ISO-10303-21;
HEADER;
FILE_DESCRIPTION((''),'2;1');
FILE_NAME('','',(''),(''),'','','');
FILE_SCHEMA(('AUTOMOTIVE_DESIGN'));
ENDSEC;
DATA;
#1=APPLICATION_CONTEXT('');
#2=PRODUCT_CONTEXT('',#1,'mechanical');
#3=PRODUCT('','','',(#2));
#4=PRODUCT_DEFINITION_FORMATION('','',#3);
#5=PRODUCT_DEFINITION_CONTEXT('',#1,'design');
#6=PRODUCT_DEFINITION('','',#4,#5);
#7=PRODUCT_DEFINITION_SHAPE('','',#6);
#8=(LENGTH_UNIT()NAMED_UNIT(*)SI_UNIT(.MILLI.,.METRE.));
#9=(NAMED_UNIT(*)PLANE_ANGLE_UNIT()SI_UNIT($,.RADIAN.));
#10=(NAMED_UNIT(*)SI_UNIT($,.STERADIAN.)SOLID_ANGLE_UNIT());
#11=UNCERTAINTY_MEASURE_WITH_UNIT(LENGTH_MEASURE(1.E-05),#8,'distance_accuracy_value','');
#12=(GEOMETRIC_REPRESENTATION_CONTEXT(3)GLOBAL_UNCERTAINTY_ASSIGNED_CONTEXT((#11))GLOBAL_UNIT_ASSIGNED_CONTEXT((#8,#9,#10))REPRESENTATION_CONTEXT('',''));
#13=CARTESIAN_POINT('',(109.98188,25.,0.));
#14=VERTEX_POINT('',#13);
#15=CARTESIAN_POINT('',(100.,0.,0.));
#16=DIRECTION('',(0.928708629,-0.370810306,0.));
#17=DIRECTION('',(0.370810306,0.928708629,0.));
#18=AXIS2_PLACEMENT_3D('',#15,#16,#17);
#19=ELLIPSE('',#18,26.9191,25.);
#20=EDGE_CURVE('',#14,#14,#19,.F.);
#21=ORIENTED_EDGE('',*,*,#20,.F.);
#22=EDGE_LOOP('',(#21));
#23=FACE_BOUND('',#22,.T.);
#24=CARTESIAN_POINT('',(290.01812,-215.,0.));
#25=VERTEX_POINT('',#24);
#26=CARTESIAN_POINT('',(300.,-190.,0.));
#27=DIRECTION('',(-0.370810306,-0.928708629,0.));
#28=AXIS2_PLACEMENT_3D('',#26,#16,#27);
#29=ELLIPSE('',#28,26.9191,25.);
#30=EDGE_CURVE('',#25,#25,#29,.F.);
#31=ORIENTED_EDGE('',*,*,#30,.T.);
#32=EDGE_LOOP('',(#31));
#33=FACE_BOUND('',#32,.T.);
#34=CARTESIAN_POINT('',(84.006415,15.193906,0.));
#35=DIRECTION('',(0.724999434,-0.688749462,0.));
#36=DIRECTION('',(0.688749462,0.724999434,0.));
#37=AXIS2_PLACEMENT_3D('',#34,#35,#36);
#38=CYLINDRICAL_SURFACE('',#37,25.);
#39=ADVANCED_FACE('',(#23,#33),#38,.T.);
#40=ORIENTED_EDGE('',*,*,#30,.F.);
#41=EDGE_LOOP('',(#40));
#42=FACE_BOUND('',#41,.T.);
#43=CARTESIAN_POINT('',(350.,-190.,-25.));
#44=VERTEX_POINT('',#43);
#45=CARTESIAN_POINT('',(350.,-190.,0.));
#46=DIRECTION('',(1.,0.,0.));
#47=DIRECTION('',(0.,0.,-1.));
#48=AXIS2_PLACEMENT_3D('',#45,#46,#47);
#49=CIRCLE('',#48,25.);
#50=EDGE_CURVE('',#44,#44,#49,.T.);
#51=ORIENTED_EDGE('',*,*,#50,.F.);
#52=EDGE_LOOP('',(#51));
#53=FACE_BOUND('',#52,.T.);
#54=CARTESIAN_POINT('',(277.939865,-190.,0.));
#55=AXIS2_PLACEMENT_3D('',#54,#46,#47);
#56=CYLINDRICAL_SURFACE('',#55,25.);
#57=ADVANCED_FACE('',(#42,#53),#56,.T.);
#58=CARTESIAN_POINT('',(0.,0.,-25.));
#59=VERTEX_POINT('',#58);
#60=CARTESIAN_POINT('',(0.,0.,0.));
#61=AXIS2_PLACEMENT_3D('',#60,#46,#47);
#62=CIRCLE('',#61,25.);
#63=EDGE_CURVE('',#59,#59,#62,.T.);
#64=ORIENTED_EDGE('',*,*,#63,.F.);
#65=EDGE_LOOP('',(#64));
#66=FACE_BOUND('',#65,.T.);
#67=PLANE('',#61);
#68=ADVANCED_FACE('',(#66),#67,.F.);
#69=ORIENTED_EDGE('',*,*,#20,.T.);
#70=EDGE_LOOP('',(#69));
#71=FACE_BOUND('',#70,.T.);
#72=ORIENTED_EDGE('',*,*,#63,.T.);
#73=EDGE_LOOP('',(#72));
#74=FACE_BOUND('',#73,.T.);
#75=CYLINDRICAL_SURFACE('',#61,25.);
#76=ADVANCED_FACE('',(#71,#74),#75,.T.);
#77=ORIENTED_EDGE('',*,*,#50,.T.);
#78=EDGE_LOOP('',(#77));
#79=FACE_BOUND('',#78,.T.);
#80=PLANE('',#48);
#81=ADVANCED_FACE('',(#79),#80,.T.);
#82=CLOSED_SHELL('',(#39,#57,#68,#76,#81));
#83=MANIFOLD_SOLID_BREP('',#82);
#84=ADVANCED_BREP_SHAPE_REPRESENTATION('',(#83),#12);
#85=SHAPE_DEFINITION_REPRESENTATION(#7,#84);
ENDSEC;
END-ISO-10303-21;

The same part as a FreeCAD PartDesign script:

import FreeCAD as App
import Part
import Sketcher

doc = App.newDocument("Part")
params = doc.addObject("Spreadsheet::Sheet", "Params")
for row, (alias, value) in enumerate([
    ("sketch1_diameter", "50 mm"),
    ("sketch2_width", "100 mm"),
    ("sketch2_width2", "50 mm"),
], start=1):
    params.set(f"A{row}", alias)
    params.set(f"B{row}", "=" + value)
    params.setAlias(f"B{row}", alias)

body = doc.addObject("PartDesign::Body", "Body")

sketch1 = body.newObject("Sketcher::SketchObject", "Sketch")
sketch1.AttachmentSupport = (doc.getObject("YZ_Plane"), [""])
sketch1.MapMode = "FlatFace"
sketch1.addGeometry(Part.Circle(App.Vector(0, 0, 0), App.Vector(0, 0, 1), 25), False)
sketch1.addConstraint([
    Sketcher.Constraint("Coincident", 0, 3, -1, 1),
    Sketcher.Constraint("Diameter", 0, 50.0),
])
sketch1.setExpression("Constraints[1]", "Params.sketch1_diameter")

sketch2 = body.newObject("Sketcher::SketchObject", "Sketch001")
sketch2.AttachmentSupport = (doc.getObject("XY_Plane"), [""])
sketch2.MapMode = "FlatFace"
sketch2.addGeometry([
    Part.LineSegment(App.Vector(0, 0, 0), App.Vector(100, 0, 0)),
    Part.LineSegment(App.Vector(100, 0, 0), App.Vector(300, -190, 0)),
    Part.LineSegment(App.Vector(300, -190, 0), App.Vector(350, -190, 0)),
], False)
sketch2.addConstraint([
    Sketcher.Constraint("Coincident", 0, 2, 1, 1),
    Sketcher.Constraint("Coincident", 1, 2, 2, 1),
    Sketcher.Constraint("Horizontal", 0),
    Sketcher.Constraint("Horizontal", 2),
    Sketcher.Constraint("Coincident", 0, 1, -1, 1),
    Sketcher.Constraint("DistanceX", 0, 1, 0, 2, 100.0),
    Sketcher.Constraint("DistanceX", 2, 1, 2, 2, 50.0),
    Sketcher.Constraint("DistanceX", -1, 1, 1, 2, 300.0),
    Sketcher.Constraint("DistanceY", 1, 2, -1, 1, 190.0),
])
sketch2.setExpression("Constraints[5]", "Params.sketch2_width")
sketch2.setExpression("Constraints[6]", "Params.sketch2_width2")
doc.recompute()

additivepipe = body.newObject("PartDesign::AdditivePipe", "AdditivePipe")
additivepipe.Profile = sketch1
additivepipe.Spine = (sketch2, ["Edge1", "Edge2", "Edge3"])
additivepipe.Transition = "Right corner"

doc.recompute()
